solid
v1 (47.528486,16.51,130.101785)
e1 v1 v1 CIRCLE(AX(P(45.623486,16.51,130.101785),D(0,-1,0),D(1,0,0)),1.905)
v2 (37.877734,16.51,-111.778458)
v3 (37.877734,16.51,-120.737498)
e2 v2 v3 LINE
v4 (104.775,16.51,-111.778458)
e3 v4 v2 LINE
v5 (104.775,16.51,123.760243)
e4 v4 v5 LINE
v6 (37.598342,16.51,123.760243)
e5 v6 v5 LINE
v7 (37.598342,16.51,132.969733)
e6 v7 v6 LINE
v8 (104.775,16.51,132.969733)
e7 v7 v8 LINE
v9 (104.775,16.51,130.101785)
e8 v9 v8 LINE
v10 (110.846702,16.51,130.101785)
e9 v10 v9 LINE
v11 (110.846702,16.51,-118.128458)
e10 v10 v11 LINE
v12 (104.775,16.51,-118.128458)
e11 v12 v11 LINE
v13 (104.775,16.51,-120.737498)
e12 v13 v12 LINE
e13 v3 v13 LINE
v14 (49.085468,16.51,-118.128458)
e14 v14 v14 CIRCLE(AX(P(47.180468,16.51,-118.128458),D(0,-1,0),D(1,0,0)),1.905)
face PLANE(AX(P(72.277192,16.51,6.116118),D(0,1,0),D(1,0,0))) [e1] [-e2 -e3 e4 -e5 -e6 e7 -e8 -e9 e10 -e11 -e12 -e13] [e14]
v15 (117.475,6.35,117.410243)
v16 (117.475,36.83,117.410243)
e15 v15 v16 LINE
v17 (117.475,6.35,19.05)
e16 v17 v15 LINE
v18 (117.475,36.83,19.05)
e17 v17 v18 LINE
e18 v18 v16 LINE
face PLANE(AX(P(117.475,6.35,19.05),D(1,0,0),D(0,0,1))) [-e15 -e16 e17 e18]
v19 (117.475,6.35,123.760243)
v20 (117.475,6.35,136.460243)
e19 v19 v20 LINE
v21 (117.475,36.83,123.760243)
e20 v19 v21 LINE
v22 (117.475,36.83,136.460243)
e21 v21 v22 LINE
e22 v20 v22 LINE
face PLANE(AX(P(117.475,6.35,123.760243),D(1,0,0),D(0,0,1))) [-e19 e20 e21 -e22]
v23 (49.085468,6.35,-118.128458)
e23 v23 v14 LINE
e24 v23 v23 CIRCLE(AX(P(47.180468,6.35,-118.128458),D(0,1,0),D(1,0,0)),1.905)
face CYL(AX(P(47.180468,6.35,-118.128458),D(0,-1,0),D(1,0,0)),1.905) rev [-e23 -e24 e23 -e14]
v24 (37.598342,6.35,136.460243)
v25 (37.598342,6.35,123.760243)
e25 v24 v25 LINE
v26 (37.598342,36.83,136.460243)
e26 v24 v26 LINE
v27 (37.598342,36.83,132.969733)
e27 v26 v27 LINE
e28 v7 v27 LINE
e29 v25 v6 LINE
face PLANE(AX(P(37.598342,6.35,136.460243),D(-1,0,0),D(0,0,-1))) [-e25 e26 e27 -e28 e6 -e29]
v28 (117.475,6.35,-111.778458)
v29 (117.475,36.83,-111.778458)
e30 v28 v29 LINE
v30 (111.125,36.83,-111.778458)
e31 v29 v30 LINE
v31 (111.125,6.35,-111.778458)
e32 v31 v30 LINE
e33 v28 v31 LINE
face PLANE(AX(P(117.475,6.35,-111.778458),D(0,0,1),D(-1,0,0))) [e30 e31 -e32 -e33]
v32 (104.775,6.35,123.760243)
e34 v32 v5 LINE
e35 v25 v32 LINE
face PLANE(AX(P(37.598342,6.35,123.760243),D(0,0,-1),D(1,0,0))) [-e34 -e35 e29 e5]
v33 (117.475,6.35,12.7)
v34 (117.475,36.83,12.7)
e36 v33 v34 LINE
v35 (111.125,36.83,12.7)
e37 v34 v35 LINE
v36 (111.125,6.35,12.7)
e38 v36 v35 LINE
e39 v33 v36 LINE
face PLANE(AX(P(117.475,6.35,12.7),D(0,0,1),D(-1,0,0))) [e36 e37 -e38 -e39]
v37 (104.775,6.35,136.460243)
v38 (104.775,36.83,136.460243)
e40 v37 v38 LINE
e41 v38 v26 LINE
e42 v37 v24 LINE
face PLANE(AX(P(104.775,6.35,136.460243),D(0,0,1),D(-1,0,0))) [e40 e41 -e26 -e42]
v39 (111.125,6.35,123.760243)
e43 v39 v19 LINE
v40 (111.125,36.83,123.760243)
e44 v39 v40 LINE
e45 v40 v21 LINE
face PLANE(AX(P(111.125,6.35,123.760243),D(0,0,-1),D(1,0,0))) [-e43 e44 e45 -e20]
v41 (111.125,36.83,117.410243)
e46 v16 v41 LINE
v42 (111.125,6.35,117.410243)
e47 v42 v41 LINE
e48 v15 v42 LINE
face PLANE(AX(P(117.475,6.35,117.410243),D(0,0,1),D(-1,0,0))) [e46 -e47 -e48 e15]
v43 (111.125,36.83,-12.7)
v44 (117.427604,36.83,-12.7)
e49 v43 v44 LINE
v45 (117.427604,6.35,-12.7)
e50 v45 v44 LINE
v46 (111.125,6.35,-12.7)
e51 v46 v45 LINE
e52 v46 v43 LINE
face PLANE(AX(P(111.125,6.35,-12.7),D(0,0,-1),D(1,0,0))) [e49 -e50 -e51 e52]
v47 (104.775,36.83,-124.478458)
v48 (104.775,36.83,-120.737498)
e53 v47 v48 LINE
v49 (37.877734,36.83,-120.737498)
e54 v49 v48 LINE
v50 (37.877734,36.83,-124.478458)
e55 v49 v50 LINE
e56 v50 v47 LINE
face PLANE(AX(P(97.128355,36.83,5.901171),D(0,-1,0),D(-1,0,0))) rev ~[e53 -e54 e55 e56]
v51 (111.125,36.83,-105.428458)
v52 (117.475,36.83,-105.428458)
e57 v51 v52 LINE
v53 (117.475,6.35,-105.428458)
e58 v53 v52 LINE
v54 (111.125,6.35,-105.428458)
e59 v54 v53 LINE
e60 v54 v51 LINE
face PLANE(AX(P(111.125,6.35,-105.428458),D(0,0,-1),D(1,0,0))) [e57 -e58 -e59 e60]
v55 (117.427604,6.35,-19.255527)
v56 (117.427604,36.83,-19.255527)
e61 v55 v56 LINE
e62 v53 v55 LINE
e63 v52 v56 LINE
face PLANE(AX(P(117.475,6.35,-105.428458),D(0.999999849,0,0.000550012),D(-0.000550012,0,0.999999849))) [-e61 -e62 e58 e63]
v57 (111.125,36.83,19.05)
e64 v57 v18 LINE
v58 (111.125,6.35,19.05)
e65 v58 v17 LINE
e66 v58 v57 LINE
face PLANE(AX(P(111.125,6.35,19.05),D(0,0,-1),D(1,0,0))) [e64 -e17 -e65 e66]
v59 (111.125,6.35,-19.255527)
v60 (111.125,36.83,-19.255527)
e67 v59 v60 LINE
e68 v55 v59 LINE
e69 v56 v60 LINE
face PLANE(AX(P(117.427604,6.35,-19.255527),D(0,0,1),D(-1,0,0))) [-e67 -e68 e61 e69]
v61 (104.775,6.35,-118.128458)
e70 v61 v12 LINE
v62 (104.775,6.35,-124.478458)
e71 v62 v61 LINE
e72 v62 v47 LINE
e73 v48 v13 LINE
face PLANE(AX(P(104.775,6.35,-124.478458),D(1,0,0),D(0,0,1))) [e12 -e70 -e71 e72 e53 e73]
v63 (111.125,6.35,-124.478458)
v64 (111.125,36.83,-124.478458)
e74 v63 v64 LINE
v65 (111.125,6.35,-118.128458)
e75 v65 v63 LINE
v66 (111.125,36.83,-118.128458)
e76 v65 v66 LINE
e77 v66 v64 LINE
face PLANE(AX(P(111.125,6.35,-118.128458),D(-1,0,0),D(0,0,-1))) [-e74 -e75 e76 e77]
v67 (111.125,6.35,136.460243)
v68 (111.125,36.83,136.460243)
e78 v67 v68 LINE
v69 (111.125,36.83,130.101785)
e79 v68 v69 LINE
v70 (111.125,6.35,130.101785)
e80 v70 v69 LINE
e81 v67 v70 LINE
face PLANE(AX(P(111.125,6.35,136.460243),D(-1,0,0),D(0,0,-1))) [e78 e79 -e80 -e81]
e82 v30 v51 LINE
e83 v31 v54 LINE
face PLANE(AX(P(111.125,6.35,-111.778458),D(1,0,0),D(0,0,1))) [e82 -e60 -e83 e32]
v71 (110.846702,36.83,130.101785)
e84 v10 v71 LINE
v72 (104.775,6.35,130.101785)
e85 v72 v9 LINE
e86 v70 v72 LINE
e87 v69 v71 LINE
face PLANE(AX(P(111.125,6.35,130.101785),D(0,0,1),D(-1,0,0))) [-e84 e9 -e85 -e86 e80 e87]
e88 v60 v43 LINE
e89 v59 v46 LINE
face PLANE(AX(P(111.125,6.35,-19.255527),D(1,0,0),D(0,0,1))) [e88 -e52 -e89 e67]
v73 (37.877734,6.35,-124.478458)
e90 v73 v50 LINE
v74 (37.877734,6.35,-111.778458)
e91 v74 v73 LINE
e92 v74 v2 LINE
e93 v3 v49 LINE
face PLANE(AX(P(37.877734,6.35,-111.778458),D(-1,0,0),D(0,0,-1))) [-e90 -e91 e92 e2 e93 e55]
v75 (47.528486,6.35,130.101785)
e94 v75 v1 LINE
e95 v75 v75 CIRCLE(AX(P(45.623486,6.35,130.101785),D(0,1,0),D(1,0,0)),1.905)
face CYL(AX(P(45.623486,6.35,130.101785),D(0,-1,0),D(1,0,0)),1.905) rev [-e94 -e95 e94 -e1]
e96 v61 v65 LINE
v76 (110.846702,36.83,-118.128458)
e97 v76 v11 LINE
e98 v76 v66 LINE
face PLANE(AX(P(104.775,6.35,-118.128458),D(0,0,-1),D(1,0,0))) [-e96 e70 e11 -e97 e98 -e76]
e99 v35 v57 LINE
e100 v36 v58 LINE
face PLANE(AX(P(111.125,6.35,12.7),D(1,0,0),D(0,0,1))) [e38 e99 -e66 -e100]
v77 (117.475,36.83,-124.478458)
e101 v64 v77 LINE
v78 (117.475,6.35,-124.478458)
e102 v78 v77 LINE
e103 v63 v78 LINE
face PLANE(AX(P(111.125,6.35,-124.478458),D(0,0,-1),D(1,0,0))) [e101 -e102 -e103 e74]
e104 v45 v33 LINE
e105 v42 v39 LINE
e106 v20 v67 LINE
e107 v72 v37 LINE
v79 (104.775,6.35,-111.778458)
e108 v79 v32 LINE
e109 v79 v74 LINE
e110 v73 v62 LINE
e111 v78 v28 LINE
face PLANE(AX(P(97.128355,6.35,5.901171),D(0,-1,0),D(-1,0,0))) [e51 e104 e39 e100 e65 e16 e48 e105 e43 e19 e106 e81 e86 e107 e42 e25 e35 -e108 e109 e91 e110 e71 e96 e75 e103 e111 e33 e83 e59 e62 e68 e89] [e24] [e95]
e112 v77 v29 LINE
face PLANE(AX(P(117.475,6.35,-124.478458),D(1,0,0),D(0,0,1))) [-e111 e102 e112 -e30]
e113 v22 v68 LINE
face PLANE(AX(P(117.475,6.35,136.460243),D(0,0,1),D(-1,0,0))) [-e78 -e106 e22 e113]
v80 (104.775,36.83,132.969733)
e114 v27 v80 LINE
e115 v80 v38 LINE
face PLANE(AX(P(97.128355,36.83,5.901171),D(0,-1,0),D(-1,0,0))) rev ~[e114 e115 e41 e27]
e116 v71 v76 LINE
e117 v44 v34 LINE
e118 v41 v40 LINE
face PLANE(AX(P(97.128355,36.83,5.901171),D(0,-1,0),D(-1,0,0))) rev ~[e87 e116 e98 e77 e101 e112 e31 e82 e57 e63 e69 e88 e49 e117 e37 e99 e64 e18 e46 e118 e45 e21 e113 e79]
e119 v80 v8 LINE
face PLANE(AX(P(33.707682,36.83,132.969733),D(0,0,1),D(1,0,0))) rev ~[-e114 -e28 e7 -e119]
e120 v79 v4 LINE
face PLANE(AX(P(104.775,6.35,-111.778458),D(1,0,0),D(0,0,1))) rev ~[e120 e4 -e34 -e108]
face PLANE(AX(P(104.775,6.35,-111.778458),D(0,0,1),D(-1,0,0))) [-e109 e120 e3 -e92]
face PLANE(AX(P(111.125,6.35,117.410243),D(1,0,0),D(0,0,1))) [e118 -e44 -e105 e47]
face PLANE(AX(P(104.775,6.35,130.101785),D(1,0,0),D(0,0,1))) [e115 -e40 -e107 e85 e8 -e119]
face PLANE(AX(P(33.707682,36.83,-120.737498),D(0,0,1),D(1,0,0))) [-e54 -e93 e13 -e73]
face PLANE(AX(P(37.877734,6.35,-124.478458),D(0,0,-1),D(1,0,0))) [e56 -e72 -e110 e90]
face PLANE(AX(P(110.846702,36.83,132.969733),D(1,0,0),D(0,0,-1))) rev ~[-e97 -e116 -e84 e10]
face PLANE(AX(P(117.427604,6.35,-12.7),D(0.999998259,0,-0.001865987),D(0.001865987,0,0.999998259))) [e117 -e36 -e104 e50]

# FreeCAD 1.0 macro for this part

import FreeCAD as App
import Part
import Sketcher

V = App.Vector
Q = App.Units.Quantity


def add_polygon(sketch, points):
    """Adds a closed chain of lines whose ends are joined by coincident constraints."""
    first, n = sketch.GeometryCount, len(points)
    for a, b in zip(points, points[1:] + points[:1]):
        sketch.addGeometry(Part.LineSegment(App.Vector(*a, 0), App.Vector(*b, 0)), False)
    for i in range(n):
        sketch.addConstraint(Sketcher.Constraint("Coincident", first + i, 2, first + (i + 1) % n, 1))

doc = App.newDocument("Part")
body = doc.addObject("PartDesign::Body", "Body")

# Sketch on XZ plane
sketch1 = body.newObject("Sketcher::SketchObject", "Sketch")
sketch1.AttachmentSupport = (doc.getObject("XZ_Plane"), [""])
sketch1.MapMode = "FlatFace"
sketch1.AttachmentOffset = App.Placement(V(0, 0, -0.25 * 25.4), App.Rotation())
add_polygon(sketch1, [(104.775, -124.478458), (37.877734, -124.478458), (37.877734, -111.778458), (104.775, -111.778458), (104.775, 123.760243), (37.598342, 123.760243), (37.598342, 136.460243), (104.775, 136.460243), (104.775, 130.101785), (111.125, 130.101785), (111.125, 136.460243), (117.475, 136.460243), (117.475, 123.760243), (111.125, 123.760243), (111.125, 117.410243), (117.475, 117.410243), (117.475, 19.05), (111.125, 19.05), (111.125, 12.7), (117.475, 12.7), (117.427604, -12.7), (111.125, -12.7), (111.125, -19.255527), (117.427604, -19.255527), (117.475, -105.428458), (111.125, -105.428458), (111.125, -111.778458), (117.475, -111.778458), (117.475, -124.478458), (111.125, -124.478458), (111.125, -118.128458), (104.775, -118.128458)])  # lines 0-31
sketch1.addGeometry(Part.Circle(V(45.623486, 130.101785, 0), V(0, 0, 1), 1.905), False)  # 32
sketch1.addGeometry(Part.Circle(V(47.180468, -118.128458, 0), V(0, 0, 1), 1.905), False)  # 33
sketch1.addConstraint([
    Sketcher.Constraint("Horizontal", 0),
    Sketcher.Constraint("Vertical", 1),
    Sketcher.Constraint("Horizontal", 2),
    Sketcher.Constraint("Vertical", 3),
    Sketcher.Constraint("Horizontal", 4),
    Sketcher.Constraint("Vertical", 5),
    Sketcher.Constraint("Horizontal", 6),
    Sketcher.Constraint("Vertical", 7),
    Sketcher.Constraint("Horizontal", 8),
    Sketcher.Constraint("Vertical", 9),
    Sketcher.Constraint("Horizontal", 10),
    Sketcher.Constraint("Vertical", 11),
    Sketcher.Constraint("Horizontal", 12),
    Sketcher.Constraint("Vertical", 13),
    Sketcher.Constraint("Horizontal", 14),
    Sketcher.Constraint("Vertical", 15),
    Sketcher.Constraint("Horizontal", 16),
    Sketcher.Constraint("Vertical", 17),
    Sketcher.Constraint("Horizontal", 18),
    Sketcher.Constraint("Horizontal", 20),
    Sketcher.Constraint("Vertical", 21),
    Sketcher.Constraint("Horizontal", 22),
    Sketcher.Constraint("Horizontal", 24),
    Sketcher.Constraint("Vertical", 25),
    Sketcher.Constraint("Horizontal", 26),
    Sketcher.Constraint("Vertical", 27),
    Sketcher.Constraint("Horizontal", 28),
    Sketcher.Constraint("Vertical", 29),
    Sketcher.Constraint("Horizontal", 30),
    Sketcher.Constraint("Vertical", 31),
    Sketcher.Constraint("Equal", 32, 33),
    Sketcher.Constraint("Symmetric", 17, 2, 20, 2, -1),
    Sketcher.Constraint("Horizontal", 32, 3, 7, 2),
    Sketcher.Constraint("Horizontal", 6, 2, 9, 2),
    Sketcher.Constraint("Horizontal", 4, 2, 11, 2),
    Sketcher.Constraint("Horizontal", 2, 2, 25, 2),
    Sketcher.Constraint("Horizontal", 0, 2, 27, 2),
    Sketcher.Constraint("Horizontal", 33, 3, 29, 2),
    Sketcher.Constraint("Vertical", 3, 2, 6, 2),
    Sketcher.Constraint("Vertical", 9, 2, 12, 2),
    Sketcher.Constraint("Vertical", 11, 2, 14, 2),
    Sketcher.Constraint("Vertical", 13, 2, 16, 2),
    Sketcher.Constraint("Vertical", 15, 2, 18, 2),
    Sketcher.Constraint("Vertical", 19, 2, 22, 2),
    Sketcher.Constraint("Vertical", 18, 2, 23, 2),
    Sketcher.Constraint("Vertical", 21, 2, 24, 2),
    Sketcher.Constraint("Vertical", 23, 2, 26, 2),
    Sketcher.Constraint("Vertical", 25, 2, 28, 2),
    Sketcher.Constraint("Vertical", 7, 2, 30, 2),
    Sketcher.Constraint("Equal", 8, 10),
    Sketcher.Constraint("Equal", 1, 5),
    Sketcher.Constraint("Equal", 30, 13),
    Sketcher.Constraint("Equal", 13, 17),
    Sketcher.Constraint("Equal", 17, 25),
    Sketcher.Constraint("Equal", 25, 29),
    Sketcher.Constraint("Diameter", 32, Q("0.15 in")),
    Sketcher.Constraint("DistanceY", 1, 1, 1, 2, Q("0.5 in")),
    Sketcher.Constraint("DistanceY", 19, 2, 18, 2, Q("1 in")),
    Sketcher.Constraint("DistanceX", 8, 1, 8, 2, Q("0.25 in")),
    Sketcher.Constraint("DistanceX", -1, 1, 2, 2, Q("4.125 in")),
    Sketcher.Constraint("DistanceY", 3, 1, 3, 2, Q("235.538701 mm")),
    Sketcher.Constraint("DistanceX", 4, 2, 4, 1, Q("67.176658 mm")),
    Sketcher.Constraint("DistanceX", 0, 2, 0, 1, Q("66.897266 mm")),
    Sketcher.Constraint("DistanceX", 20, 2, 20, 1, Q("6.302604 mm")),
    Sketcher.Constraint("DistanceY", 7, 2, 7, 1, Q("6.358458 mm")),
    Sketcher.Constraint("DistanceY", 15, 2, 15, 1, Q("98.360243 mm")),
    Sketcher.Constraint("DistanceY", 21, 2, 21, 1, Q("6.555527 mm")),
    Sketcher.Constraint("DistanceX", -1, 1, 33, 3, Q("47.180468 mm")),
    Sketcher.Constraint("DistanceX", 0, 2, 32, 3, Q("7.745752 mm")),
])
pad1 = body.newObject("PartDesign::Pad", "Pad")
pad1.Profile = sketch1
pad1.Length = Q("1.2 in")
pad1.Reversed = True

# Sketch on XZ plane
sketch2 = body.newObject("Sketcher::SketchObject", "Sketch001")
sketch2.AttachmentSupport = (doc.getObject("XZ_Plane"), [""])
sketch2.MapMode = "FlatFace"
sketch2.AttachmentOffset = App.Placement(V(0, 0, -1.45 * 25.4), App.Rotation())
add_polygon(sketch2, [(33.707682, -120.737498), (33.707682, 132.969733), (110.846702, 132.969733), (110.846702, -120.737498)])  # lines 0-3
sketch2.addConstraint([
    Sketcher.Constraint("Vertical", 0),
    Sketcher.Constraint("Horizontal", 1),
    Sketcher.Constraint("Vertical", 2),
    Sketcher.Constraint("Horizontal", 3),
    Sketcher.Constraint("DistanceX", 1, 1, 1, 2, Q("77.13902 mm")),
    Sketcher.Constraint("DistanceY", 0, 1, 0, 2, Q("253.707231 mm")),
    Sketcher.Constraint("DistanceX", -1, 1, 0, 2, Q("33.707682 mm")),
    Sketcher.Constraint("DistanceY", -1, 1, 0, 2, Q("132.969733 mm")),
])
pocket1 = body.newObject("PartDesign::Pocket", "Pocket")
pocket1.Profile = sketch2
pocket1.Length = Q("0.8 in")
pocket1.Reversed = True

doc.recompute()
